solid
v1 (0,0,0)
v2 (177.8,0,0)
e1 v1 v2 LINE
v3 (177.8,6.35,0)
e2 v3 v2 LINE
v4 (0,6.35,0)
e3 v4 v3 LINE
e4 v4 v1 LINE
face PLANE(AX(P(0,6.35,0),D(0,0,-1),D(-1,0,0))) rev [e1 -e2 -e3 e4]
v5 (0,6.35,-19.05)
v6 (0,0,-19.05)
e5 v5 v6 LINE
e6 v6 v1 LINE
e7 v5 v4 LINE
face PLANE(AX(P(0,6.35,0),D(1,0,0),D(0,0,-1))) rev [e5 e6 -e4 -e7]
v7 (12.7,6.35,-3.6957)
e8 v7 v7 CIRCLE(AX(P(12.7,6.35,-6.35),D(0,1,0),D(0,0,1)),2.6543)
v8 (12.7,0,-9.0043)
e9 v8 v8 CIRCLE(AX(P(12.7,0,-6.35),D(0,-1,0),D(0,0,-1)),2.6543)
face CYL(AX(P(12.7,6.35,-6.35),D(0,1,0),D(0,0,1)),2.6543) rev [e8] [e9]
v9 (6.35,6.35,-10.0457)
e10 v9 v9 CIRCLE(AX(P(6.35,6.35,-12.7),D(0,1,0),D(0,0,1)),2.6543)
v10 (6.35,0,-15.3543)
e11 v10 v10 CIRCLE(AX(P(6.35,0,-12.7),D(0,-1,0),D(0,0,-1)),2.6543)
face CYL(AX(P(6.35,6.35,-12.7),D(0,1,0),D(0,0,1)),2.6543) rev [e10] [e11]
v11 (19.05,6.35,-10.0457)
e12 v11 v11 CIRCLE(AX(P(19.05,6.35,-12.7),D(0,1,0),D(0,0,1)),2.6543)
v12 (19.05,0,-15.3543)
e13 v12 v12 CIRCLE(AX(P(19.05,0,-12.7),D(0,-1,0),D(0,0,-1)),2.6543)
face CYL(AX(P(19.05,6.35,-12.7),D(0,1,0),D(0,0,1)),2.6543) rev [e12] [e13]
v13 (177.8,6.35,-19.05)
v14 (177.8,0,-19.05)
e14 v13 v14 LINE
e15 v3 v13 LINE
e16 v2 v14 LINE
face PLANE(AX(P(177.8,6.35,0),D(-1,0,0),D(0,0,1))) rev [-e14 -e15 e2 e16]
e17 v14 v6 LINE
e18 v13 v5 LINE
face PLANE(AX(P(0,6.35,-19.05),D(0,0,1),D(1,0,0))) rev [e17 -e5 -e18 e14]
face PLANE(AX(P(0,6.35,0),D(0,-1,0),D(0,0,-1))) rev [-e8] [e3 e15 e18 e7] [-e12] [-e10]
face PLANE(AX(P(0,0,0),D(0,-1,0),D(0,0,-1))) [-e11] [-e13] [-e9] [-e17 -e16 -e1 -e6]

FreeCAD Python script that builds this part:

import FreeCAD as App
import Part
import Sketcher

V = App.Vector
Q = App.Units.Quantity


def add_polygon(sketch, points):
    """Adds a closed chain of lines whose ends are joined by coincident constraints."""
    first, n = sketch.GeometryCount, len(points)
    for a, b in zip(points, points[1:] + points[:1]):
        sketch.addGeometry(Part.LineSegment(App.Vector(*a, 0), App.Vector(*b, 0)), False)
    for i in range(n):
        sketch.addConstraint(Sketcher.Constraint("Coincident", first + i, 2, first + (i + 1) % n, 1))

doc = App.newDocument("Part")
body = doc.addObject("PartDesign::Body", "Body")

sketch1 = body.newObject("Sketcher::SketchObject", "Sketch")
sketch1.AttachmentSupport = (doc.getObject("XZ_Plane"), [""])
sketch1.MapMode = "FlatFace"
add_polygon(sketch1, [(0, -19), (0, 0), (178, 0), (178, -19)])
sketch1.addConstraint(Sketcher.Constraint("Vertical", 0))
sketch1.addConstraint(Sketcher.Constraint("Horizontal", 1))
sketch1.addConstraint(Sketcher.Constraint("Vertical", 2))
sketch1.addConstraint(Sketcher.Constraint("Horizontal", 3))
sketch1.addConstraint(Sketcher.Constraint("Coincident", 0, 2, -1, 1))
sketch1.addConstraint(Sketcher.Constraint("DistanceX", 1, 1, 1, 2, Q("7 in")))
sketch1.addConstraint(Sketcher.Constraint("DistanceY", 0, 1, 0, 2, Q("0.75 in")))
pad1 = body.newObject("PartDesign::Pad", "Pad")
pad1.Profile = sketch1
pad1.Length = Q("0.25 in")
pad1.Reversed = True

sketch2 = body.newObject("Sketcher::SketchObject", "Sketch001")
sketch2.AttachmentSupport = (doc.getObject("XZ_Plane"), [""])
sketch2.MapMode = "FlatFace"
sketch2.AttachmentOffset = App.Placement(V(0, 0, -0.25 * 25.4), App.Rotation())
sketch2.addGeometry(Part.Circle(V(6.3, -12.7, 0), V(0, 0, 1), 2.7), False)
sketch2.addGeometry(Part.Circle(V(19.1, -12.7, 0), V(0, 0, 1), 2.7), False)
sketch2.addGeometry(Part.Circle(V(12.7, -6.3, 0), V(0, 0, 1), 2.7), False)
sketch2.addConstraint(Sketcher.Constraint("Equal", 0, 1))
sketch2.addConstraint(Sketcher.Constraint("Equal", 1, 2))
sketch2.addConstraint(Sketcher.Constraint("Horizontal", 0, 3, 1, 3))
sketch2.addConstraint(Sketcher.Constraint("Diameter", 0, Q("0.209 in")))
sketch2.addConstraint(Sketcher.Constraint("DistanceY", 0, 3, -1, 1, Q("0.5 in")))
sketch2.addConstraint(Sketcher.Constraint("DistanceX", -1, 1, 2, 3, Q("0.5 in")))
sketch2.addConstraint(Sketcher.Constraint("DistanceX", 0, 3, 1, 3, Q("0.5 in")))
sketch2.addConstraint(Sketcher.Constraint("DistanceX", -1, 1, 0, 3, Q("0.25 in")))
sketch2.addConstraint(Sketcher.Constraint("DistanceY", 2, 3, -1, 1, Q("0.25 in")))
doc.recompute()
hole = body.newObject("PartDesign::Hole", "Hole")
hole.Profile = sketch2
hole.ThreadType = "None"
hole.Diameter = Q("0.209 in")
hole.DepthType = "Dimension"
hole.Depth = Q("0.42 in")
hole.DrillPoint = "Angled"
hole.DrillPointAngle = 118
hole.Reversed = True

doc.recompute()
